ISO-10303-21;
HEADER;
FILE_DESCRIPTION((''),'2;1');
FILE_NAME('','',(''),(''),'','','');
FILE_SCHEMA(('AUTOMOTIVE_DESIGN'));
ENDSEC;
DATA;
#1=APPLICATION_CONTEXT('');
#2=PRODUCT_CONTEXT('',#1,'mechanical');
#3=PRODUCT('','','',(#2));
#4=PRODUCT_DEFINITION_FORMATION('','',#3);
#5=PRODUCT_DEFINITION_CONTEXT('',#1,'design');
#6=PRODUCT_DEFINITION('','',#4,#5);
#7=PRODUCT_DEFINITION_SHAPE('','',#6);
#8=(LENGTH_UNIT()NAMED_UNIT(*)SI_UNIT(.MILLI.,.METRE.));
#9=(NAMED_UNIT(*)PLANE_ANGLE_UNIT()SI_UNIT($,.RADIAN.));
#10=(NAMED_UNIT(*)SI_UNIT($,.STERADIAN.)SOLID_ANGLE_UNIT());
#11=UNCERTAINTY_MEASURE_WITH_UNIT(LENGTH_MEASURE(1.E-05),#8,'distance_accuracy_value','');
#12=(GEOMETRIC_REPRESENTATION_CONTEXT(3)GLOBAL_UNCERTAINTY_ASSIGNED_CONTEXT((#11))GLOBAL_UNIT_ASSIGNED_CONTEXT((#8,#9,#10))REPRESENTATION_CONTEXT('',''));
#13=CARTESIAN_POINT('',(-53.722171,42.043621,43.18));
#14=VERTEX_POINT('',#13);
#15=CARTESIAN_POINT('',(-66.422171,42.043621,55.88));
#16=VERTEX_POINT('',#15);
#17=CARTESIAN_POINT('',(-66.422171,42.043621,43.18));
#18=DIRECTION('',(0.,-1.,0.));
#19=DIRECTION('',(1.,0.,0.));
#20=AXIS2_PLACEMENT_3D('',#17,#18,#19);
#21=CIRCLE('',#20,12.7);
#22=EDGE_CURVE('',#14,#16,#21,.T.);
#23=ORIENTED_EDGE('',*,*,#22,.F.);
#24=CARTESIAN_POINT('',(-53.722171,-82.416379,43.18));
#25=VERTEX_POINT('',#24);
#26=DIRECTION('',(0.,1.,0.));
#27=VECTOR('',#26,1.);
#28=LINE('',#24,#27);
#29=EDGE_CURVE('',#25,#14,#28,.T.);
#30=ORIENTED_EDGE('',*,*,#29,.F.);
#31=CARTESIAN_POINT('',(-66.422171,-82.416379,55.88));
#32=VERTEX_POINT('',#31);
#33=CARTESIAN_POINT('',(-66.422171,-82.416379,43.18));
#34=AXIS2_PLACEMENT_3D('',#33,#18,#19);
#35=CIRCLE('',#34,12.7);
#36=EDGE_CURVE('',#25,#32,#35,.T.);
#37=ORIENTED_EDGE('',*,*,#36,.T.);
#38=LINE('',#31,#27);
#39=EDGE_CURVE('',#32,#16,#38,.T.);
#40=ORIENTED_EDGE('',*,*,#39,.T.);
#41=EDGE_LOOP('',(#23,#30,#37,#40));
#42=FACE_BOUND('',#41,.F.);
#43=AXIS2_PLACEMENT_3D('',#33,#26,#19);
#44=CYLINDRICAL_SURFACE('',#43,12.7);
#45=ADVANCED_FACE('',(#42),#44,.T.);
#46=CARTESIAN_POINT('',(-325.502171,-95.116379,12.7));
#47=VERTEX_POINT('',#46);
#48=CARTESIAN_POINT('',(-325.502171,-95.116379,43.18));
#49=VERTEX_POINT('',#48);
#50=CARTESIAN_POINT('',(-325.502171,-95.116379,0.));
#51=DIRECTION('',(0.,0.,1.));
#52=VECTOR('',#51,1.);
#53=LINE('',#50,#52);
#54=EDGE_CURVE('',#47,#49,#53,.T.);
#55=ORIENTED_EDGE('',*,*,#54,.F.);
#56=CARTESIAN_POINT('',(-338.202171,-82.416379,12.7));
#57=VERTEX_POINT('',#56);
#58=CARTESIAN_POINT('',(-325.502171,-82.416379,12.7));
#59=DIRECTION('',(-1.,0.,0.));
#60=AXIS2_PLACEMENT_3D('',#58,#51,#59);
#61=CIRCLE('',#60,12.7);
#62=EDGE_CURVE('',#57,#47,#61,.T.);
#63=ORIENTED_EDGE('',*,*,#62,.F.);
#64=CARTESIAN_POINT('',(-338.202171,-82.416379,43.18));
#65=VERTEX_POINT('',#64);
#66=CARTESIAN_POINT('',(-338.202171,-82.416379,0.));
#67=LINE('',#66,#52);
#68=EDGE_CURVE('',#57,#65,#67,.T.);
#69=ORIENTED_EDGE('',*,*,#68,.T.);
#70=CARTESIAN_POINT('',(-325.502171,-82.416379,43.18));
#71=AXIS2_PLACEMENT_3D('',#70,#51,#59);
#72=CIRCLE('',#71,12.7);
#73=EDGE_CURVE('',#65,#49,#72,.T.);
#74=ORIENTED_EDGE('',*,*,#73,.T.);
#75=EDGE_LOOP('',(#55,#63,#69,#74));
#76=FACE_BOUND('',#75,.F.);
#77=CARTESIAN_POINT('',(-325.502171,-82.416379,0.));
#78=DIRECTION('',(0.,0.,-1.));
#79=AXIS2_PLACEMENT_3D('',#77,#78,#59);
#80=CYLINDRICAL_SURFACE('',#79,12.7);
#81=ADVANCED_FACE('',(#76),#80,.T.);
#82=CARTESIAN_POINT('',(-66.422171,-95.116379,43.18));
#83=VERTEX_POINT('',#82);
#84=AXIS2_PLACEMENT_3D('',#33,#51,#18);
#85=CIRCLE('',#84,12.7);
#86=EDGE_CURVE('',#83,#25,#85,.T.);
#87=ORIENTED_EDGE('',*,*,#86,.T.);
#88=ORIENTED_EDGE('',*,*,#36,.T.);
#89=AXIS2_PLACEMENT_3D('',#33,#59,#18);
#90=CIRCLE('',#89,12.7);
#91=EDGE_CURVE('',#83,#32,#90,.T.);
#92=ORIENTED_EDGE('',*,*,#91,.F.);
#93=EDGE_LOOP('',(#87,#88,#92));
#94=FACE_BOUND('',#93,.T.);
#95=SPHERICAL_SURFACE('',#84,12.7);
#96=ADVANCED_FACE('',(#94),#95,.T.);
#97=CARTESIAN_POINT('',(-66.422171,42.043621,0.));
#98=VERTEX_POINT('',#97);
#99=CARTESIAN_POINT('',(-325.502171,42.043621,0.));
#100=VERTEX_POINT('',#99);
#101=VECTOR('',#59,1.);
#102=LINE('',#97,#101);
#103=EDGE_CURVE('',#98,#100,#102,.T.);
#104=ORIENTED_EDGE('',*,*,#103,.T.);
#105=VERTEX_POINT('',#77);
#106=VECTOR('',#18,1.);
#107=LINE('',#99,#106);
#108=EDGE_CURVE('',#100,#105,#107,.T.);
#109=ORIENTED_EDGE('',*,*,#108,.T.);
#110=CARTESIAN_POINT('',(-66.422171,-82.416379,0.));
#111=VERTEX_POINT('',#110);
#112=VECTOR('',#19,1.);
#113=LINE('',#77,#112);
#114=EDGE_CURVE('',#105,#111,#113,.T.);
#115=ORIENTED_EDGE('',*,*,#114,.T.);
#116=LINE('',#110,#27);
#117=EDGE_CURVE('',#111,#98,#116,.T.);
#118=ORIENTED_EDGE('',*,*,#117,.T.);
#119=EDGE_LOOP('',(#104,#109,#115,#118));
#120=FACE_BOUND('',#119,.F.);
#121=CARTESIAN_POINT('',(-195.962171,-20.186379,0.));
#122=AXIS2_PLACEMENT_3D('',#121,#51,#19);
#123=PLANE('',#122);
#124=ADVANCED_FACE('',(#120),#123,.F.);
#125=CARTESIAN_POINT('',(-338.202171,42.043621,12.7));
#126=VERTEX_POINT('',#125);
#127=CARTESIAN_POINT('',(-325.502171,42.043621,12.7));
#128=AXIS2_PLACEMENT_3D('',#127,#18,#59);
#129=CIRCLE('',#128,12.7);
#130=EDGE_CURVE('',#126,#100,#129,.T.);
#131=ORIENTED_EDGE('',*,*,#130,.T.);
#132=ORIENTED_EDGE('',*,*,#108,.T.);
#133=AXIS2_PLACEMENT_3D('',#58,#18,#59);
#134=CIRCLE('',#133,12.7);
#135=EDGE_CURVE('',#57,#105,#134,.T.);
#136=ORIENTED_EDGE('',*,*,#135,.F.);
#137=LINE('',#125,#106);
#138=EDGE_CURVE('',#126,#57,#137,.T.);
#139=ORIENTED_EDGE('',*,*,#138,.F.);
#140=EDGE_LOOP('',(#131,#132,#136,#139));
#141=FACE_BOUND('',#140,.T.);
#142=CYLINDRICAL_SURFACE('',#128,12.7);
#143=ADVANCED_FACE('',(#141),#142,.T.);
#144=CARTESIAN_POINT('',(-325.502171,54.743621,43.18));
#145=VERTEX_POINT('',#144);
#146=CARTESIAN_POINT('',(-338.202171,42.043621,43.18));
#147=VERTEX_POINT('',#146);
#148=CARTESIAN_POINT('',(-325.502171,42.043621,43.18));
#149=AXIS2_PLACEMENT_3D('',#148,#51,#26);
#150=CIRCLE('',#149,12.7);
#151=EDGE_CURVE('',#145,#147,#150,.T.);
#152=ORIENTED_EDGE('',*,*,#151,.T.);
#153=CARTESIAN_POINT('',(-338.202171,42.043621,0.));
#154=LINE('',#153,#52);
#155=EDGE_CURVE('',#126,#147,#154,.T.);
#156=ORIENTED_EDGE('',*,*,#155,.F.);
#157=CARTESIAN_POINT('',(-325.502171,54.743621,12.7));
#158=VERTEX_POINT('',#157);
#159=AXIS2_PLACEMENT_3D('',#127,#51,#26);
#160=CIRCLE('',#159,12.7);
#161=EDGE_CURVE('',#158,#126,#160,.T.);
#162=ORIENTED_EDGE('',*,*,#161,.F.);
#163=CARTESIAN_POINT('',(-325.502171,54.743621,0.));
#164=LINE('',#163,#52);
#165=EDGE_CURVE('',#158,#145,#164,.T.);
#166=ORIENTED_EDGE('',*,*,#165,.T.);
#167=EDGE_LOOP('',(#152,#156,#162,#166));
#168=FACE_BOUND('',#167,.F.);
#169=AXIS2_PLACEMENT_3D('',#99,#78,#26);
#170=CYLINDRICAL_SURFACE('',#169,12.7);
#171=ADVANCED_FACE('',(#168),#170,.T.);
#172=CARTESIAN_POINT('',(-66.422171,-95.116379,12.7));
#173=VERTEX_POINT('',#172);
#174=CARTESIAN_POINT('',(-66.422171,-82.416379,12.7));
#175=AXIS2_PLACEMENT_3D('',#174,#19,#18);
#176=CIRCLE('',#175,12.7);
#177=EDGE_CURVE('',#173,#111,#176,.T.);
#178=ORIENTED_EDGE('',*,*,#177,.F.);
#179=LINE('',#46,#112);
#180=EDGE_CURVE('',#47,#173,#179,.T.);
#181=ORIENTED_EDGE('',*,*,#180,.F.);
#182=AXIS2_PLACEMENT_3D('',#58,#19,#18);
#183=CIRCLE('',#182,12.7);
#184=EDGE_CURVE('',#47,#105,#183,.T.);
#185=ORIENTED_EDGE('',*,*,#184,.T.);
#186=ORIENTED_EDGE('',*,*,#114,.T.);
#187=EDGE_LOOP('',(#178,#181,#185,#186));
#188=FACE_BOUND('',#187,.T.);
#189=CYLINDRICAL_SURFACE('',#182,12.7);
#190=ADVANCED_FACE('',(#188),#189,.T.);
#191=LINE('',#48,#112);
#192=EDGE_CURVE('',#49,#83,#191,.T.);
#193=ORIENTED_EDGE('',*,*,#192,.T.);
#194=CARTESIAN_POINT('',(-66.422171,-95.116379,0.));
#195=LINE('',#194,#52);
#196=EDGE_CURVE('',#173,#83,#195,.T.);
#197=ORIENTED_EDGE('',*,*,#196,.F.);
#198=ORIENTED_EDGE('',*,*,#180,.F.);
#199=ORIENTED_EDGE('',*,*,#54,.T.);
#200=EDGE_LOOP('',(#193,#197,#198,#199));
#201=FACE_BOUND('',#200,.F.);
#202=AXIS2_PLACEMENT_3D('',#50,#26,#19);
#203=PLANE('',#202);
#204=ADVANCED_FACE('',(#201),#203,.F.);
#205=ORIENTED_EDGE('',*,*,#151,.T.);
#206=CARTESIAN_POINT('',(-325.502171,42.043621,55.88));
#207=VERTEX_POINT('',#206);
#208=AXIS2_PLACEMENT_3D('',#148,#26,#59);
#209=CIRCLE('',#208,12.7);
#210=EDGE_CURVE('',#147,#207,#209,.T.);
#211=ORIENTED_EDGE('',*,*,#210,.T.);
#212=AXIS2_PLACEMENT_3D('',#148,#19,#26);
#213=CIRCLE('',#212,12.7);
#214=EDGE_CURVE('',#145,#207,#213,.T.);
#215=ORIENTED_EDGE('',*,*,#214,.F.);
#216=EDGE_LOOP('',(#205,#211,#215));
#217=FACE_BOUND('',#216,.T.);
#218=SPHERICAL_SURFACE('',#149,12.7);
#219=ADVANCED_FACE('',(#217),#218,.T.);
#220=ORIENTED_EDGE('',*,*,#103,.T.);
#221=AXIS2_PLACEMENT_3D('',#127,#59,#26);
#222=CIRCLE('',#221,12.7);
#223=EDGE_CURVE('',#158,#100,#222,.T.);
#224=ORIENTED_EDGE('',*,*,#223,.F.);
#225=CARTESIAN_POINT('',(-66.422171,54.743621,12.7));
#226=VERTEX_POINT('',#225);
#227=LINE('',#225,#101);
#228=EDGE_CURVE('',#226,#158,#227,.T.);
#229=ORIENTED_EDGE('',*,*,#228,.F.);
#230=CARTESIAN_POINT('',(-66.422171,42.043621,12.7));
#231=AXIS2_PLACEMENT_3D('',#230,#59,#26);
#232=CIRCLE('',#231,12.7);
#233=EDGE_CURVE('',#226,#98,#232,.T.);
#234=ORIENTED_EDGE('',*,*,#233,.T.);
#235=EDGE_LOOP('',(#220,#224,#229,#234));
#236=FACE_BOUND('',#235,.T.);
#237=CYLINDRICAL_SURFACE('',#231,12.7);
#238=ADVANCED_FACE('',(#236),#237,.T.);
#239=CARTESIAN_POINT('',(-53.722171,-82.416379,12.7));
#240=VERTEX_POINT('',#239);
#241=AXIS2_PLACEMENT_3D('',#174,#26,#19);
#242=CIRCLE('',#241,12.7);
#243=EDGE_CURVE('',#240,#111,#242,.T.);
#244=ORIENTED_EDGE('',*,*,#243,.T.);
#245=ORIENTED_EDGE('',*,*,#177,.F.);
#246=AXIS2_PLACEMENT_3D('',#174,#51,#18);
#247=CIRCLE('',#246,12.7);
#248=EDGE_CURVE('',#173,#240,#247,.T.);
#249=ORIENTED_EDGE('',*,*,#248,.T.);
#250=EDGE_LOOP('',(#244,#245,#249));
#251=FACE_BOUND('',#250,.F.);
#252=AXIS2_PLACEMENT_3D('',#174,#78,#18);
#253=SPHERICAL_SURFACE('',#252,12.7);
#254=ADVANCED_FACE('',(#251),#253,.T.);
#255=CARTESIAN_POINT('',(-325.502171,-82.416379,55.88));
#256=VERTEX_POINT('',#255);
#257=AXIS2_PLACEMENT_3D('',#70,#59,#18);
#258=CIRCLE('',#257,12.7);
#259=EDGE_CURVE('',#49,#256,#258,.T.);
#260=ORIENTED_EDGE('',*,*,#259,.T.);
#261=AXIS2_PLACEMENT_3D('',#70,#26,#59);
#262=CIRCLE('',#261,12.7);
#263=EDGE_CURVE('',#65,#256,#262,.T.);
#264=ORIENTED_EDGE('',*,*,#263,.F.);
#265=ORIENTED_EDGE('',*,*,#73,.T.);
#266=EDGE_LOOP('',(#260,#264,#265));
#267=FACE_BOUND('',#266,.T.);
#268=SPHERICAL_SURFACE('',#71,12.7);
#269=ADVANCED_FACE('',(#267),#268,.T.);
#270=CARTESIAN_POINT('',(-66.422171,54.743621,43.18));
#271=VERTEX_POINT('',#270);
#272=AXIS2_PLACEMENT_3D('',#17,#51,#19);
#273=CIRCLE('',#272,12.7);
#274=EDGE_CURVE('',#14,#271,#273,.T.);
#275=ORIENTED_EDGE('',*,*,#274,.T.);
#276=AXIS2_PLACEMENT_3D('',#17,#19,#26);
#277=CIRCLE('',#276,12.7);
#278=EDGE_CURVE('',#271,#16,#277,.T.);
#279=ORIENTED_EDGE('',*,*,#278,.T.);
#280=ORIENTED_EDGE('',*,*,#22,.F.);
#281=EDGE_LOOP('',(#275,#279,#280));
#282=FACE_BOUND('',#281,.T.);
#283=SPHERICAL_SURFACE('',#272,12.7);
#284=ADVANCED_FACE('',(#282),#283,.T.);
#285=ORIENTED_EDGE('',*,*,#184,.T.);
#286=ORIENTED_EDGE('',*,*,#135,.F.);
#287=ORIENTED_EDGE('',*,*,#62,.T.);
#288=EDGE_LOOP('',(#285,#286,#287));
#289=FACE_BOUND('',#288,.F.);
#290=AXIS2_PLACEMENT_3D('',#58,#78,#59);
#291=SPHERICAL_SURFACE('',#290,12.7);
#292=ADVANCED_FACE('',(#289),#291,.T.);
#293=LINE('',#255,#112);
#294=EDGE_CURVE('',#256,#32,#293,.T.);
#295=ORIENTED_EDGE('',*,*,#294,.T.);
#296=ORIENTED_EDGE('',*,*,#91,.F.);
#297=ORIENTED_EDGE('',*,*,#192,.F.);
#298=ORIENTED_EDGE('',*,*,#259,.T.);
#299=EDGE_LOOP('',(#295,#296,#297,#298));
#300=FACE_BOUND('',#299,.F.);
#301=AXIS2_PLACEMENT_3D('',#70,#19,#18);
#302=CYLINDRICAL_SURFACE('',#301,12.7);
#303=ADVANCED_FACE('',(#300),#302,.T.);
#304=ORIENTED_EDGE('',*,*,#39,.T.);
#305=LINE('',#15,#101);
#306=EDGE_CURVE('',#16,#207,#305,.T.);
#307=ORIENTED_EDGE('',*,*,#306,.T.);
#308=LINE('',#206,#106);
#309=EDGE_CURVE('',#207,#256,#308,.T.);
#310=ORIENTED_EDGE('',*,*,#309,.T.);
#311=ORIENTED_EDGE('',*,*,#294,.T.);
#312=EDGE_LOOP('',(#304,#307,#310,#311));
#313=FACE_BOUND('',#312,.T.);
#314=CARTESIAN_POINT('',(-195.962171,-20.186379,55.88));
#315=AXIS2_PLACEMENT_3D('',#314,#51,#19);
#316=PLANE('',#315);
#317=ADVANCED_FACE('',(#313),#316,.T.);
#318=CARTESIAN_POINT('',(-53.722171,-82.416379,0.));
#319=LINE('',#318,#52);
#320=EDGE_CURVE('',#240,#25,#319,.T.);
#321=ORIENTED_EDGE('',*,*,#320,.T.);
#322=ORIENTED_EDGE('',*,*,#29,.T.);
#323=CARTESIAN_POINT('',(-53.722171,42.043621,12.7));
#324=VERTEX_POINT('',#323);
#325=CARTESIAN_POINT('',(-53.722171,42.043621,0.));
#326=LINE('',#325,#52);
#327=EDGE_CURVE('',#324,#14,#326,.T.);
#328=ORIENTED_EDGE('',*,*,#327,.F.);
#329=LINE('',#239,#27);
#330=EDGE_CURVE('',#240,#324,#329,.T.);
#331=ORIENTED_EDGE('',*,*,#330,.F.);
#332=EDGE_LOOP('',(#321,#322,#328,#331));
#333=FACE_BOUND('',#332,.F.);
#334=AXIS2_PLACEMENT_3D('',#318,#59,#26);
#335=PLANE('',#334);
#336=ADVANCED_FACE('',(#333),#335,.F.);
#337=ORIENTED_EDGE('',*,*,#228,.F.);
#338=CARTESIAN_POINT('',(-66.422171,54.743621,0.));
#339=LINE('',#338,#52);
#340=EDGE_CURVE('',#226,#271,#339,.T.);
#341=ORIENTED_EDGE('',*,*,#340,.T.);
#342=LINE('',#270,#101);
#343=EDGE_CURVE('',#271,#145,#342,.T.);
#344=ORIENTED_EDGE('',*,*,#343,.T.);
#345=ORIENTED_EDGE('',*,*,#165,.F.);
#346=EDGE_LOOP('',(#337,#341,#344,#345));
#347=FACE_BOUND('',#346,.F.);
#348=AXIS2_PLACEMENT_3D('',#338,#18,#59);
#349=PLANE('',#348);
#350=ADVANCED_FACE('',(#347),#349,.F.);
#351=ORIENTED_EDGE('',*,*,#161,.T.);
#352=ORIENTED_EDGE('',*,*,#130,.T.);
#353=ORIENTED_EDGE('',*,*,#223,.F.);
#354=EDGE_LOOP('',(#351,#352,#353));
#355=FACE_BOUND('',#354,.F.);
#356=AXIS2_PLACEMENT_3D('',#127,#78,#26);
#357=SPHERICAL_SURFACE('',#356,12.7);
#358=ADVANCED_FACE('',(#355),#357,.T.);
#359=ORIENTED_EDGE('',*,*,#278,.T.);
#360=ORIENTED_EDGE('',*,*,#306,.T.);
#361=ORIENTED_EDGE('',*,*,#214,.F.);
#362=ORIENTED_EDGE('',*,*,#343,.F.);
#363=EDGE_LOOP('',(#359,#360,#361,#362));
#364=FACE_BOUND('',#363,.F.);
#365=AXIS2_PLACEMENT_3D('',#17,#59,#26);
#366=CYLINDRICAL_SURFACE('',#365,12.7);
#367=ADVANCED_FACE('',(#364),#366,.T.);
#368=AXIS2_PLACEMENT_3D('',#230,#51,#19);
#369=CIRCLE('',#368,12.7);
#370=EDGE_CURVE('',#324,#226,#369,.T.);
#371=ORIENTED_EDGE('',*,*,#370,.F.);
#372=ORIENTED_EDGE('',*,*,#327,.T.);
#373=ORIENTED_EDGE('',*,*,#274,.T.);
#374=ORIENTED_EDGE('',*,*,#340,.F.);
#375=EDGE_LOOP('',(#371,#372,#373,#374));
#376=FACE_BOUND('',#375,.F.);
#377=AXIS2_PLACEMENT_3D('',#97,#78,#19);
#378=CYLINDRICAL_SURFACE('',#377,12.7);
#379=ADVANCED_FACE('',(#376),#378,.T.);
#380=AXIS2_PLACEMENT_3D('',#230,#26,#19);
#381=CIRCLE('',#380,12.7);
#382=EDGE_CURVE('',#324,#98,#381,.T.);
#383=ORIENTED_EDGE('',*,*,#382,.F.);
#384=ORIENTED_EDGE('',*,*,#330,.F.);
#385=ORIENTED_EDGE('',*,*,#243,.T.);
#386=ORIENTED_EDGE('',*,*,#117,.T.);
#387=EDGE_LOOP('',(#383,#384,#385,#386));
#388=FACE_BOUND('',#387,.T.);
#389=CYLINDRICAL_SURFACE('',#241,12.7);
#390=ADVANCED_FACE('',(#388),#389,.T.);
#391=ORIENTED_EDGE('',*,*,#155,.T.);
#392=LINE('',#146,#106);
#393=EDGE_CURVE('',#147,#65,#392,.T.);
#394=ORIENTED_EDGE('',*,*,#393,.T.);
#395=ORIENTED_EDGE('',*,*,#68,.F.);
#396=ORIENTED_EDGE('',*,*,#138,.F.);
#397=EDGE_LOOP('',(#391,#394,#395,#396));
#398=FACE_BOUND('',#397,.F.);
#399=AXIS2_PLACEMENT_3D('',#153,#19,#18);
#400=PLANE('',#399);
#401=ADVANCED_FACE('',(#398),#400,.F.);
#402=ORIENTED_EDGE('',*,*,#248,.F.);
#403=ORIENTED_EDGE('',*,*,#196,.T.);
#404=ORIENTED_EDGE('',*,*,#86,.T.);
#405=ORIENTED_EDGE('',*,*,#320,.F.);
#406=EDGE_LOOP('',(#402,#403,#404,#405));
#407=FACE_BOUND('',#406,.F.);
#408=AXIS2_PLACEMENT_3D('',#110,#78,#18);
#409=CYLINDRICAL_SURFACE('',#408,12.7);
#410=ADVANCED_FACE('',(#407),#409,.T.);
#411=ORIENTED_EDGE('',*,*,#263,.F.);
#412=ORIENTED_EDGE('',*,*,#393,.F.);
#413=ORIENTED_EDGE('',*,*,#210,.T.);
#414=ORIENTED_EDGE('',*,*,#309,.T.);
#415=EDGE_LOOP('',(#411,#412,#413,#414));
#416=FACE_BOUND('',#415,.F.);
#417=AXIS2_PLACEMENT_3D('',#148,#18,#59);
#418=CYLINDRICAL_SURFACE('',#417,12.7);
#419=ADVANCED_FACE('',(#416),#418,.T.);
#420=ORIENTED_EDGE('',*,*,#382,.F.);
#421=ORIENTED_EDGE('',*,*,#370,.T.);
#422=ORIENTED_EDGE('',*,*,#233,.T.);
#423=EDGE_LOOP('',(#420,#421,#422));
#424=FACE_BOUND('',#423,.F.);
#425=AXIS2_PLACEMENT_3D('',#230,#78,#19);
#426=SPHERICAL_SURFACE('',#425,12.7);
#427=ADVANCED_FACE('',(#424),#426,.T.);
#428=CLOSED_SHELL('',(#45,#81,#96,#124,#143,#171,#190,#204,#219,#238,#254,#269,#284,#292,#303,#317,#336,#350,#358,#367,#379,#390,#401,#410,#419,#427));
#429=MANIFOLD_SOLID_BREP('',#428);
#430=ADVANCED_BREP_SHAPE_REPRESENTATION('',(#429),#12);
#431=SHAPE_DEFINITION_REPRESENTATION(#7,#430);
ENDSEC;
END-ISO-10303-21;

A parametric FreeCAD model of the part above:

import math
import FreeCAD as App
import Part
import Sketcher
from FreeCAD import Vector
Q = App.Units.Quantity

doc = App.newDocument("Part")
body = doc.addObject("PartDesign::Body", "Body")

# Sketch on XY plane
sketch1 = doc.addObject("Sketcher::SketchObject", "Sketch")
body.addObject(sketch1)
sketch1.AttachmentSupport = (doc.XY_Plane, [""])
sketch1.MapMode = "FlatFace"
sketch1.addGeometry([
    Part.LineSegment(Vector(-66, 55, 0), Vector(-326, 55, 0)),  # 0
    Part.ArcOfCircle(Part.Circle(Vector(-326, 42, 0), Vector(0, 0, 1), 13), math.radians(90), math.radians(180)),  # 1
    Part.LineSegment(Vector(-338, 42, 0), Vector(-338, -82, 0)),  # 2
    Part.ArcOfCircle(Part.Circle(Vector(-326, -82, 0), Vector(0, 0, 1), 13), math.radians(180), math.radians(270)),  # 3
    Part.LineSegment(Vector(-326, -95, 0), Vector(-66, -95, 0)),  # 4
    Part.ArcOfCircle(Part.Circle(Vector(-66, -82, 0), Vector(0, 0, 1), 13), math.radians(-90), math.radians(0)),  # 5
    Part.LineSegment(Vector(-54, -82, 0), Vector(-54, 42, 0)),  # 6
    Part.ArcOfCircle(Part.Circle(Vector(-66, 42, 0), Vector(0, 0, 1), 13), math.radians(0), math.radians(90)),  # 7
], False)
sketch1.addConstraint([
    Sketcher.Constraint("Tangent", 0, 2, 1, 1),
    Sketcher.Constraint("Tangent", 1, 2, 2, 1),
    Sketcher.Constraint("Tangent", 2, 2, 3, 1),
    Sketcher.Constraint("Tangent", 3, 2, 4, 1),
    Sketcher.Constraint("Tangent", 4, 2, 5, 1),
    Sketcher.Constraint("Tangent", 5, 2, 6, 1),
    Sketcher.Constraint("Tangent", 6, 2, 7, 1),
    Sketcher.Constraint("Tangent", 7, 2, 0, 1),
    Sketcher.Constraint("Horizontal", 0),
    Sketcher.Constraint("Vertical", 2),
    Sketcher.Constraint("Horizontal", 4),
    Sketcher.Constraint("Vertical", 6),
    Sketcher.Constraint("Equal", 1, 3),
    Sketcher.Constraint("Equal", 3, 5),
    Sketcher.Constraint("Equal", 5, 7),
    Sketcher.Constraint("Radius", 1, Q("0.5 in")),
    Sketcher.Constraint("DistanceX", 0, 2, 0, 1, Q("10.2 in")),
    Sketcher.Constraint("DistanceY", 2, 2, 2, 1, Q("4.9 in")),
    Sketcher.Constraint("DistanceX", 1, 3, -1, 1, Q("325.502171 mm")),
    Sketcher.Constraint("DistanceY", -1, 1, 1, 3, Q("42.043621 mm")),
])
pad1 = doc.addObject("PartDesign::Pad", "Pad")
body.addObject(pad1)
pad1.Profile = sketch1
pad1.Length = Q("2.2 in")
doc.recompute()

fillet = doc.addObject("PartDesign::Fillet", "Fillet")
body.addObject(fillet)
fillet.Base = (pad1, ["Edge1"])
fillet.UseAllEdges = True
fillet.Radius = Q("0.5 in")

doc.recompute()
